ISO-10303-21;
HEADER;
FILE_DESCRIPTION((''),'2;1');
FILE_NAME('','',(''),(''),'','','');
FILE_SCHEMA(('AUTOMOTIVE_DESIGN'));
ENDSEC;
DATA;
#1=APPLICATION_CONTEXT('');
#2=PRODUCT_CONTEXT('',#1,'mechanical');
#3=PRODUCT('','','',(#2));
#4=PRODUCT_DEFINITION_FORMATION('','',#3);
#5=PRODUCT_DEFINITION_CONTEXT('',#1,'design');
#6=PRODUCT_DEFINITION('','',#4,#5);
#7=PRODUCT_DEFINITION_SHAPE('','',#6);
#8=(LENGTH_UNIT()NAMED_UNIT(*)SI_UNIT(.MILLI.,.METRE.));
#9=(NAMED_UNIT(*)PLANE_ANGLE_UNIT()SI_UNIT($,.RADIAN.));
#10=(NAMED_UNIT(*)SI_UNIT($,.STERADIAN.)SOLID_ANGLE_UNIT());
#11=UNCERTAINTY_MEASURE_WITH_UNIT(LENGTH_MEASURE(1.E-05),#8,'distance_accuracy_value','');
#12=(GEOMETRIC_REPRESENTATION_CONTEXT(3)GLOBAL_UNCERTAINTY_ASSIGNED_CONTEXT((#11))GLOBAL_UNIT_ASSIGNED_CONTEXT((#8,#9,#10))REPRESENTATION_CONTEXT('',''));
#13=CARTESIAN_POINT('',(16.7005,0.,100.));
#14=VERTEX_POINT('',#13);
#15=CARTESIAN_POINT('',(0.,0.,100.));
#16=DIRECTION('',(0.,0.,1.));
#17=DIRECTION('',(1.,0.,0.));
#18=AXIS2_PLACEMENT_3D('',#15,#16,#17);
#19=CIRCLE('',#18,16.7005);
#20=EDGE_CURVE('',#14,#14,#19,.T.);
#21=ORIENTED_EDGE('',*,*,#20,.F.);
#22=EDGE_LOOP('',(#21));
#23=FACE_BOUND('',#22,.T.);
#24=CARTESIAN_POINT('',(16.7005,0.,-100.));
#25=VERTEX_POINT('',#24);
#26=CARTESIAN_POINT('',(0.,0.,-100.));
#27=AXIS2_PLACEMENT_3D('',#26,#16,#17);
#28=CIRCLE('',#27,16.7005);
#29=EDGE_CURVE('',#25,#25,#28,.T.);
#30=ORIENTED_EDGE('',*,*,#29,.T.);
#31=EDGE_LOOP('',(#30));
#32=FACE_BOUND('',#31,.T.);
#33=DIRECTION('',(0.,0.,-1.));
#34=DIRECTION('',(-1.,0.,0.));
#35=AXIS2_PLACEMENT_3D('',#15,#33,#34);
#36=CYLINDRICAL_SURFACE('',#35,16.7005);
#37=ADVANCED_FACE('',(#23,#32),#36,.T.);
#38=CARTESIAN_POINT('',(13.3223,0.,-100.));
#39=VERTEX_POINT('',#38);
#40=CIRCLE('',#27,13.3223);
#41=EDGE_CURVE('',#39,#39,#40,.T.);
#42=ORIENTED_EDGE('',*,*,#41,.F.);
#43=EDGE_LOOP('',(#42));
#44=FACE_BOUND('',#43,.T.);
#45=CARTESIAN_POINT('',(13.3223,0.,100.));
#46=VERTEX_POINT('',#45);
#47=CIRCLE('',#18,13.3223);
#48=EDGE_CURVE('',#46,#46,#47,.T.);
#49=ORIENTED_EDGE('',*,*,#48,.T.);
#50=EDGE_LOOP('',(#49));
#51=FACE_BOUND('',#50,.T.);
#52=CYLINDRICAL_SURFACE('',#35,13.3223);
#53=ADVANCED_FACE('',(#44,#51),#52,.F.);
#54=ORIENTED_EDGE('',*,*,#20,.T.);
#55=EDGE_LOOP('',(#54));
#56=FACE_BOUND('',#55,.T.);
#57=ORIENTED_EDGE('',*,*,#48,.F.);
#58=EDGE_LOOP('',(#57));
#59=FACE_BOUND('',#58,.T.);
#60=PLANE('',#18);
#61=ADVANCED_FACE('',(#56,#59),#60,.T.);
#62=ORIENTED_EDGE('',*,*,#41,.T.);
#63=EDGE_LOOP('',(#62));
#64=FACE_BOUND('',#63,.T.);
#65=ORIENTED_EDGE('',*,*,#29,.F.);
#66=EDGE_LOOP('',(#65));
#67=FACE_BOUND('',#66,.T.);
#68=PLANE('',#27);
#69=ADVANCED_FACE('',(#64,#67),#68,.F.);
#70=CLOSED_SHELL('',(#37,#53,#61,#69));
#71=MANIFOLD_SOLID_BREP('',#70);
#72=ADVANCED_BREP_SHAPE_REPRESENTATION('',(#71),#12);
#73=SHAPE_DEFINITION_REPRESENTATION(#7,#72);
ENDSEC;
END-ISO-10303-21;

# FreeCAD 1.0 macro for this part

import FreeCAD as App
import Part
import Sketcher

V = App.Vector
Q = App.Units.Quantity

doc = App.newDocument("Part")
body = doc.addObject("PartDesign::Body", "Body")

# Sketch on XY plane
sketch1 = doc.addObject("Sketcher::SketchObject", "Sketch")
body.addObject(sketch1)
sketch1.AttachmentSupport = (doc.XY_Plane, [""])
sketch1.MapMode = "FlatFace"
sketch1.addGeometry([
    Part.Circle(V(0, 0, 0), V(0, 0, 1), 17),
    Part.Circle(V(0, 0, 0), V(0, 0, 1), 13),
], False)
sketch1.addConstraint([
    Sketcher.Constraint("Coincident", 0, 3, -1, 1),
    Sketcher.Constraint("Coincident", 1, 3, -1, 1),
    Sketcher.Constraint("Diameter", 0, Q("1.315 in")),
    Sketcher.Constraint("Diameter", 1, Q("1.049 in")),
])
pad1 = doc.addObject("PartDesign::Pad", "Pad")
body.addObject(pad1)
pad1.Profile = sketch1
pad1.Length = 200
pad1.Midplane = True

doc.recompute()
